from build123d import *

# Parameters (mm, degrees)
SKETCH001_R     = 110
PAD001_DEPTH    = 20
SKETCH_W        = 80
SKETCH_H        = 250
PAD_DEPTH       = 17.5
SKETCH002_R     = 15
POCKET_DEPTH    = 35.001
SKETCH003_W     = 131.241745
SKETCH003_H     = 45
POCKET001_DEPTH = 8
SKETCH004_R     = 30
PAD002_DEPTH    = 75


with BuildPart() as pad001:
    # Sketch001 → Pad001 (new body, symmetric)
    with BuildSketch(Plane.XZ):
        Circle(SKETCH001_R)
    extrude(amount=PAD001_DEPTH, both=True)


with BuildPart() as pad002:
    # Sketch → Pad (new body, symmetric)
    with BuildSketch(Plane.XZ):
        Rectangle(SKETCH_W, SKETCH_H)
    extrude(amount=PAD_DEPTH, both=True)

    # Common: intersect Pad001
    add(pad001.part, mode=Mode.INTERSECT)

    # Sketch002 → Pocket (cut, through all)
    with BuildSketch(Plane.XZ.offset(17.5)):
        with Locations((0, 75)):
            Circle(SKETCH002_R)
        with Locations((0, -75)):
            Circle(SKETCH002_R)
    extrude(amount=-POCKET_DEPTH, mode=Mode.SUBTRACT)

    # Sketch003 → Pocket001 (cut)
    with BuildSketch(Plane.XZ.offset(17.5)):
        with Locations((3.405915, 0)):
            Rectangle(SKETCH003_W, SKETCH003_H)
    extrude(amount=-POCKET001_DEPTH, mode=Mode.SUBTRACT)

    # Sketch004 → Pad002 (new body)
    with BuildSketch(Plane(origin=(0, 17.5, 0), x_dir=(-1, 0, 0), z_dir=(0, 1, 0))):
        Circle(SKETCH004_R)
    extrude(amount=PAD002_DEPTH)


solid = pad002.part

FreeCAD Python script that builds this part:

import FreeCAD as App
import Part
import Sketcher

V = App.Vector
Q = App.Units.Quantity

doc = App.newDocument("Part")
body = doc.addObject("PartDesign::Body", "Body")

# Sketch on XZ plane
sketch1 = doc.addObject("Sketcher::SketchObject", "Sketch")
body.addObject(sketch1)
sketch1.AttachmentSupport = (doc.XZ_Plane, [""])
sketch1.MapMode = "FlatFace"
sketch1.addGeometry(Part.Circle(V(0, 0, 0), V(0, 0, 1), 110), False)
sketch1.addConstraint([
    Sketcher.Constraint("Coincident", 0, 3, -1, 1),
    Sketcher.Constraint("Diameter", 0, Q("220 mm")),
])
pad1 = doc.addObject("PartDesign::Pad", "Pad")
body.addObject(pad1)
pad1.Profile = sketch1
pad1.Length = 40
pad1.Midplane = True
body2 = doc.addObject("PartDesign::Body", "Body001")

# Sketch on XZ plane
sketch2 = doc.addObject("Sketcher::SketchObject", "Sketch001")
body2.addObject(sketch2)
sketch2.AttachmentSupport = (doc.getObject("XZ_Plane001"), [""])
sketch2.MapMode = "FlatFace"
sketch2.addGeometry([
    Part.LineSegment(V(-40, 125, 0), V(-40, -125, 0)),
    Part.LineSegment(V(-40, -125, 0), V(40, -125, 0)),
    Part.LineSegment(V(40, -125, 0), V(40, 125, 0)),
    Part.LineSegment(V(40, 125, 0), V(-40, 125, 0)),
], False)
sketch2.addConstraint([
    Sketcher.Constraint("Coincident", 0, 2, 1, 1),
    Sketcher.Constraint("Coincident", 1, 2, 2, 1),
    Sketcher.Constraint("Coincident", 2, 2, 3, 1),
    Sketcher.Constraint("Coincident", 3, 2, 0, 1),
    Sketcher.Constraint("Vertical", 0),
    Sketcher.Constraint("Horizontal", 1),
    Sketcher.Constraint("Vertical", 2),
    Sketcher.Constraint("Horizontal", 3),
    Sketcher.Constraint("Symmetric", 0, 2, 2, 2, -1, 1),
    Sketcher.Constraint("DistanceX", 1, 1, 1, 2, Q("80 mm")),
    Sketcher.Constraint("DistanceY", 0, 2, 0, 1, Q("250 mm")),
])
pad2 = doc.addObject("PartDesign::Pad", "Pad001")
body2.addObject(pad2)
pad2.Profile = sketch2
pad2.Length = 35
pad2.Midplane = True
doc.recompute()

boolean = doc.addObject("PartDesign::Boolean", "Boolean")
body2.addObject(boolean)
boolean.Type = "Common"
boolean.addObjects([body])

# Sketch on XZ plane
sketch3 = doc.addObject("Sketcher::SketchObject", "Sketch002")
body2.addObject(sketch3)
sketch3.AttachmentSupport = (doc.getObject("XZ_Plane001"), [""])
sketch3.MapMode = "FlatFace"
sketch3.AttachmentOffset = App.Placement(V(0, 0, 17.5), App.Rotation())
sketch3.addGeometry([
    Part.Circle(V(0, 75, 0), V(0, 0, 1), 15),
    Part.Circle(V(0, -75, 0), V(0, 0, 1), 15),
], False)
sketch3.addConstraint([
    Sketcher.Constraint("Equal", 0, 1),
    Sketcher.Constraint("Symmetric", 0, 3, 1, 3, -1, 1),
    Sketcher.Constraint("PointOnObject", 0, 3, -2),
    Sketcher.Constraint("Diameter", 0, Q("30 mm")),
    Sketcher.Constraint("DistanceY", -1, 1, 0, 3, Q("75 mm")),
])
pocket1 = doc.addObject("PartDesign::Pocket", "Pocket")
body2.addObject(pocket1)
pocket1.Profile = sketch3
pocket1.Type = "ThroughAll"

# Sketch on XZ plane
sketch4 = doc.addObject("Sketcher::SketchObject", "Sketch003")
body2.addObject(sketch4)
sketch4.AttachmentSupport = (doc.getObject("XZ_Plane001"), [""])
sketch4.MapMode = "FlatFace"
sketch4.AttachmentOffset = App.Placement(V(0, 0, 17.5), App.Rotation())
sketch4.addGeometry([
    Part.LineSegment(V(-62, 22, 0), V(-62, -22, 0)),
    Part.LineSegment(V(-62, -22, 0), V(69, -22, 0)),
    Part.LineSegment(V(69, -22, 0), V(69, 22, 0)),
    Part.LineSegment(V(69, 22, 0), V(-62, 22, 0)),
], False)
sketch4.addConstraint([
    Sketcher.Constraint("Coincident", 0, 2, 1, 1),
    Sketcher.Constraint("Coincident", 1, 2, 2, 1),
    Sketcher.Constraint("Coincident", 2, 2, 3, 1),
    Sketcher.Constraint("Coincident", 3, 2, 0, 1),
    Sketcher.Constraint("Vertical", 0),
    Sketcher.Constraint("Horizontal", 1),
    Sketcher.Constraint("Vertical", 2),
    Sketcher.Constraint("Horizontal", 3),
    Sketcher.Constraint("DistanceY", 0, 2, 0, 1, Q("45 mm")),
    Sketcher.Constraint("DistanceY", 0, 2, -1, 1, Q("22.5 mm")),
    Sketcher.Constraint("DistanceX", 1, 1, 1, 2, Q("131.241745 mm")),
    Sketcher.Constraint("DistanceX", 0, 2, -1, 1, Q("62.214957 mm")),
])
pocket2 = doc.addObject("PartDesign::Pocket", "Pocket001")
body2.addObject(pocket2)
pocket2.Profile = sketch4
pocket2.Length = 8

# Sketch on XZ plane
sketch5 = doc.addObject("Sketcher::SketchObject", "Sketch004")
body2.addObject(sketch5)
sketch5.AttachmentSupport = (doc.getObject("XZ_Plane001"), [""])
sketch5.MapMode = "FlatFace"
sketch5.AttachmentOffset = App.Placement(V(0, 0, -17.5), App.Rotation())
sketch5.addGeometry(Part.Circle(V(0, 0, 0), V(0, 0, 1), 30), False)
sketch5.addConstraint([
    Sketcher.Constraint("Coincident", 0, 3, -1, 1),
    Sketcher.Constraint("Diameter", 0, Q("60 mm")),
])
pad3 = doc.addObject("PartDesign::Pad", "Pad002")
body2.addObject(pad3)
pad3.Profile = sketch5
pad3.Length = 75
pad3.Reversed = True

doc.recompute()
